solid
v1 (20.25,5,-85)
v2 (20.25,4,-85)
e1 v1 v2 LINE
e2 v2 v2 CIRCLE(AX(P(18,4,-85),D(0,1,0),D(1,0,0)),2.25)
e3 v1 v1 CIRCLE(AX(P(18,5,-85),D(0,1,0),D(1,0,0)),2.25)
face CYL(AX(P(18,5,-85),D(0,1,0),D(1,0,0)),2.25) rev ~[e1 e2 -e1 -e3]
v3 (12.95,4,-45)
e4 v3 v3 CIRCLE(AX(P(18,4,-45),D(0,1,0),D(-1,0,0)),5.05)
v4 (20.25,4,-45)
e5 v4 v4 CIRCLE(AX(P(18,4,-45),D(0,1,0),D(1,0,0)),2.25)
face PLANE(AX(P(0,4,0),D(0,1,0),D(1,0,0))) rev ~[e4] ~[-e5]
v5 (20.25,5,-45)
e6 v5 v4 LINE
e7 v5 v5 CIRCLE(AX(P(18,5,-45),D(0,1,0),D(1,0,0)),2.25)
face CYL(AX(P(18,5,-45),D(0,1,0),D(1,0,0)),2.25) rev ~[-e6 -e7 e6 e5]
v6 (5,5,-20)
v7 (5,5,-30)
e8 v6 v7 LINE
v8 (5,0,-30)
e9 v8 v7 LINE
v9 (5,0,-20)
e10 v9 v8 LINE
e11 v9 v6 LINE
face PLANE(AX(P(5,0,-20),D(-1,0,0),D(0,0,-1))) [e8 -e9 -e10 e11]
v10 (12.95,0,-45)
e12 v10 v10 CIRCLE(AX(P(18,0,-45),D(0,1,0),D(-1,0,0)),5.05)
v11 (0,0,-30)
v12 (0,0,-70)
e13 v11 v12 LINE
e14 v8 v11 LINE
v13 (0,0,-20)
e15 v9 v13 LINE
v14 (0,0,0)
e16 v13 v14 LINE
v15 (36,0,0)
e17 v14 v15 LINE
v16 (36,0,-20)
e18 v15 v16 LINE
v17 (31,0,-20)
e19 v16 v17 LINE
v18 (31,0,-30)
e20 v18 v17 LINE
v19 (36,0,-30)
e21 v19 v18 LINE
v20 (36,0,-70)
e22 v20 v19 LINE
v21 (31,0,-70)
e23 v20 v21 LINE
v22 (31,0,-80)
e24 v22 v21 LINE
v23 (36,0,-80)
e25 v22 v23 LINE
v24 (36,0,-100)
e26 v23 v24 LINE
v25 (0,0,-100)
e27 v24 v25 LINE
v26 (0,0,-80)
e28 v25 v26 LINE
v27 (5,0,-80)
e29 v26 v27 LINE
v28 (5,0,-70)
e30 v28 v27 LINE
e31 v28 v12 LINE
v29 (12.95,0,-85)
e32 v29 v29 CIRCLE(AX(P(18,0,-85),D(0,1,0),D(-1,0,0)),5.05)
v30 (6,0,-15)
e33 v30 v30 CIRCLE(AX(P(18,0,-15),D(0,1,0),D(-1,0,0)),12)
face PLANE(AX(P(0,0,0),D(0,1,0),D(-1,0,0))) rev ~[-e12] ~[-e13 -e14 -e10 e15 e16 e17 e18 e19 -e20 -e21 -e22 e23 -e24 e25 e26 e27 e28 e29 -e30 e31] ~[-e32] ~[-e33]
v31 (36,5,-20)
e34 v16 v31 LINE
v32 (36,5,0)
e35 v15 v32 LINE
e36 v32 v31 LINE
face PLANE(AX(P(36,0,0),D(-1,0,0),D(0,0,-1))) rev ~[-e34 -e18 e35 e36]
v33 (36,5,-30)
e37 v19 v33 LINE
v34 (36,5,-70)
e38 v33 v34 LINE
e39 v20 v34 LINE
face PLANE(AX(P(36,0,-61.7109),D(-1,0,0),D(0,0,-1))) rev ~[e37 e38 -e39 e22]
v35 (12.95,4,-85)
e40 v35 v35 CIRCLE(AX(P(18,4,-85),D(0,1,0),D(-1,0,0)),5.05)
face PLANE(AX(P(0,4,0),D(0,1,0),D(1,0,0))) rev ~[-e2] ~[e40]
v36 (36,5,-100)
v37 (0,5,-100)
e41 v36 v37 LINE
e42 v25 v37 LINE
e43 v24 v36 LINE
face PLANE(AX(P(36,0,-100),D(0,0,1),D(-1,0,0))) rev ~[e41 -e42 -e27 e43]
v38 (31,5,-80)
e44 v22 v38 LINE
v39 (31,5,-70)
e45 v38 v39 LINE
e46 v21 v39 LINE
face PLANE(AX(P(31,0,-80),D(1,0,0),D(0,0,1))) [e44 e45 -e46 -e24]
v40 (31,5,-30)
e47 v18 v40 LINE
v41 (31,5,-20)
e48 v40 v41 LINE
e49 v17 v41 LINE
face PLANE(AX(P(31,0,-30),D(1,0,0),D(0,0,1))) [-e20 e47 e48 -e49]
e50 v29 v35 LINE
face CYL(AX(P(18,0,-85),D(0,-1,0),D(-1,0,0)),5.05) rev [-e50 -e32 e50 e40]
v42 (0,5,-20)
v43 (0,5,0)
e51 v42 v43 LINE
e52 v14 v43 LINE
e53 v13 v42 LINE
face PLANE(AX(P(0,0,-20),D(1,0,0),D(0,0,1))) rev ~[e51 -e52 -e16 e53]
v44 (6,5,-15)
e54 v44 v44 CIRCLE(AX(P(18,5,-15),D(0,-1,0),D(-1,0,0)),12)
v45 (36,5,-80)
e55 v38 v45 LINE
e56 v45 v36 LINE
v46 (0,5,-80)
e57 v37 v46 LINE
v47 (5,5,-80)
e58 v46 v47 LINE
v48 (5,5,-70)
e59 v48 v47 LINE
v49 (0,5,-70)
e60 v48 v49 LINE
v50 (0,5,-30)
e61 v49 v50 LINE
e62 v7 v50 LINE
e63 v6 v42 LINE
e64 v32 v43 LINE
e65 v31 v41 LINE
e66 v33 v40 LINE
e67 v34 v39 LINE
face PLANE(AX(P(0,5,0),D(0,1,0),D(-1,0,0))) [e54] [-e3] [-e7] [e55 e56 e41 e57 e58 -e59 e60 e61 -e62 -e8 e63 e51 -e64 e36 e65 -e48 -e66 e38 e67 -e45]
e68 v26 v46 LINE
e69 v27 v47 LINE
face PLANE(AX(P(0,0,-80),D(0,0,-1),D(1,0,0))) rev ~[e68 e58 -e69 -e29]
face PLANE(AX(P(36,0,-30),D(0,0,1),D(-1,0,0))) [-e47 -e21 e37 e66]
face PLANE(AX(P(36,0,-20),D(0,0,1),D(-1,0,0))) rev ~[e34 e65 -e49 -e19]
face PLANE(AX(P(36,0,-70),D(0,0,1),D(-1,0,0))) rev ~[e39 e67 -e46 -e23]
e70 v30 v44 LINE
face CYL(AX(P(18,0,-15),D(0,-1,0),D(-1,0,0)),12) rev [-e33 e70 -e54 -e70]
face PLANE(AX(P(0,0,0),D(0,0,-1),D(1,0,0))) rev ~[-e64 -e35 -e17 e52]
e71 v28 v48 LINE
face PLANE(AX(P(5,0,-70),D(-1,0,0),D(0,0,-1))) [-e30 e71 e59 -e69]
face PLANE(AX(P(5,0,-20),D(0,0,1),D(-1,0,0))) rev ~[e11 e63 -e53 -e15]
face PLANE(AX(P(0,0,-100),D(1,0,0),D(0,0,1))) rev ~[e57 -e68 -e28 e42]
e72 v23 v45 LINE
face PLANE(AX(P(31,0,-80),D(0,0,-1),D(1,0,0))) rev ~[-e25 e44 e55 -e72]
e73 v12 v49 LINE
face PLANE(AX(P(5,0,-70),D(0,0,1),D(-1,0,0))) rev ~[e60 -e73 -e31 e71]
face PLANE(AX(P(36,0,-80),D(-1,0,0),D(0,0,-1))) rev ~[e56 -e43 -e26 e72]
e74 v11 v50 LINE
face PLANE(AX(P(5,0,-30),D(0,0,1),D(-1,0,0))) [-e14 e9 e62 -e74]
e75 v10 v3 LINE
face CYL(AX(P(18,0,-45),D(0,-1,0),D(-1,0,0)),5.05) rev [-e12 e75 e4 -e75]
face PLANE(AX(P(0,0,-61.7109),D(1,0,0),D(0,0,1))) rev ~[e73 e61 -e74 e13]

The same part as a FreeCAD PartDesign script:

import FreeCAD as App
import Part
import Sketcher
from FreeCAD import Vector


def add_polygon(sketch, points):
    """Adds a closed chain of lines whose ends are joined by coincident constraints."""
    first, n = sketch.GeometryCount, len(points)
    for a, b in zip(points, points[1:] + points[:1]):
        sketch.addGeometry(Part.LineSegment(App.Vector(*a, 0), App.Vector(*b, 0)), False)
    for i in range(n):
        sketch.addConstraint(Sketcher.Constraint("Coincident", first + i, 2, first + (i + 1) % n, 1))

doc = App.newDocument("Part")
body = doc.addObject("PartDesign::Body", "Body")

sketch1 = body.newObject("Sketcher::SketchObject", "Sketch")
sketch1.AttachmentSupport = (doc.getObject("XZ_Plane"), [""])
sketch1.MapMode = "FlatFace"
add_polygon(sketch1, [(0, -20), (0, 0), (36, 0), (36, -20), (31, -20), (31, -30), (36, -30), (36, -70), (31, -70), (31, -80), (36, -80), (36, -100), (0, -100), (0, -80), (5, -80), (5, -70), (0, -70), (0, -30), (5, -30), (5, -20)])
sketch1.addGeometry(Part.Circle(Vector(18, -15, 0), Vector(0, 0, 1), 12), False)
sketch1.addGeometry(Part.Circle(Vector(18, -45, 0), Vector(0, 0, 1), 5), False)
sketch1.addGeometry(Part.Circle(Vector(18, -85, 0), Vector(0, 0, 1), 5), False)
sketch1.addConstraint([
    Sketcher.Constraint("Vertical", 0),
    Sketcher.Constraint("Horizontal", 1),
    Sketcher.Constraint("Vertical", 2),
    Sketcher.Constraint("Horizontal", 3),
    Sketcher.Constraint("Vertical", 4),
    Sketcher.Constraint("Horizontal", 5),
    Sketcher.Constraint("Vertical", 6),
    Sketcher.Constraint("Horizontal", 7),
    Sketcher.Constraint("Vertical", 8),
    Sketcher.Constraint("Horizontal", 9),
    Sketcher.Constraint("Vertical", 10),
    Sketcher.Constraint("Horizontal", 11),
    Sketcher.Constraint("Vertical", 12),
    Sketcher.Constraint("Horizontal", 13),
    Sketcher.Constraint("Vertical", 14),
    Sketcher.Constraint("Horizontal", 15),
    Sketcher.Constraint("Vertical", 16),
    Sketcher.Constraint("Horizontal", 17),
    Sketcher.Constraint("Vertical", 18),
    Sketcher.Constraint("Horizontal", 19),
    Sketcher.Constraint("Coincident", 0, 2, -1, 1),
    Sketcher.Constraint("Equal", 21, 22),
    Sketcher.Constraint("PointOnObject", 11, 2, -2),
    Sketcher.Constraint("PointOnObject", 15, 2, -2),
    Sketcher.Constraint("Horizontal", 9, 2, 12, 2),
    Sketcher.Constraint("Horizontal", 7, 2, 14, 2),
    Sketcher.Constraint("Horizontal", 5, 2, 16, 2),
    Sketcher.Constraint("Horizontal", 3, 2, 18, 2),
    Sketcher.Constraint("Vertical", 20, 3, 21, 3),
    Sketcher.Constraint("Vertical", 21, 3, 22, 3),
    Sketcher.Constraint("Vertical", 2, 2, 5, 2),
    Sketcher.Constraint("Vertical", 4, 2, 7, 2),
    Sketcher.Constraint("Vertical", 6, 2, 9, 2),
    Sketcher.Constraint("Vertical", 14, 2, 17, 2),
    Sketcher.Constraint("Equal", 9, 13),
    Sketcher.Constraint("Equal", 4, 8),
    Sketcher.Constraint("Equal", 2, 10),
    Sketcher.Constraint("Diameter", 20, 24.0),
    Sketcher.Constraint("Diameter", 21, 10.1),
    Sketcher.Constraint("DistanceX", 1, 1, 1, 2, 36.0),
    Sketcher.Constraint("DistanceX", 3, 2, 3, 1, 5.0),
    Sketcher.Constraint("DistanceY", 0, 1, 0, 2, 20.0),
    Sketcher.Constraint("DistanceY", 4, 2, 4, 1, 10.0),
    Sketcher.Constraint("DistanceY", 6, 2, 6, 1, 40.0),
    Sketcher.Constraint("DistanceY", 20, 3, -1, 1, 15.0),
    Sketcher.Constraint("DistanceY", 21, 3, 20, 3, 30.0),
    Sketcher.Constraint("DistanceY", 22, 3, 21, 3, 40.0),
    Sketcher.Constraint("DistanceX", -1, 1, 20, 3, 18.0),
])
pad1 = body.newObject("PartDesign::Pad", "Pad")
pad1.Profile = sketch1
pad1.Length = 5
pad1.Reversed = True

sketch2 = body.newObject("Sketcher::SketchObject", "Sketch001")
sketch2.AttachmentSupport = (doc.getObject("XZ_Plane"), [""])
sketch2.MapMode = "FlatFace"
sketch2.AttachmentOffset = App.Placement(Vector(0, 0, -5), App.Rotation())
sketch2.addGeometry([
    Part.Circle(Vector(18, -45, 0), Vector(0, 0, 1), 5),
    Part.Circle(Vector(18, -45, 0), Vector(0, 0, 1), 2.2),
    Part.Circle(Vector(18, -85, 0), Vector(0, 0, 1), 5),
    Part.Circle(Vector(18, -85, 0), Vector(0, 0, 1), 2.2),
], False)
sketch2.addConstraint([
    Sketcher.Constraint("Coincident", 1, 3, 0, 3),
    Sketcher.Constraint("Coincident", 3, 3, 2, 3),
    Sketcher.Constraint("Equal", 0, 2),
    Sketcher.Constraint("Equal", 1, 3),
    Sketcher.Constraint("Vertical", 1, 3, 2, 3),
    Sketcher.Constraint("Diameter", 1, 4.5),
    Sketcher.Constraint("Diameter", 0, 10.1),
    Sketcher.Constraint("DistanceX", -1, 1, 0, 3, 18.0),
    Sketcher.Constraint("DistanceY", 0, 3, -1, 1, 45.0),
    Sketcher.Constraint("DistanceY", 2, 3, -1, 1, 85.0),
])
pad2 = body.newObject("PartDesign::Pad", "Pad001")
pad2.Profile = sketch2
pad2.Length = 1

doc.recompute()
